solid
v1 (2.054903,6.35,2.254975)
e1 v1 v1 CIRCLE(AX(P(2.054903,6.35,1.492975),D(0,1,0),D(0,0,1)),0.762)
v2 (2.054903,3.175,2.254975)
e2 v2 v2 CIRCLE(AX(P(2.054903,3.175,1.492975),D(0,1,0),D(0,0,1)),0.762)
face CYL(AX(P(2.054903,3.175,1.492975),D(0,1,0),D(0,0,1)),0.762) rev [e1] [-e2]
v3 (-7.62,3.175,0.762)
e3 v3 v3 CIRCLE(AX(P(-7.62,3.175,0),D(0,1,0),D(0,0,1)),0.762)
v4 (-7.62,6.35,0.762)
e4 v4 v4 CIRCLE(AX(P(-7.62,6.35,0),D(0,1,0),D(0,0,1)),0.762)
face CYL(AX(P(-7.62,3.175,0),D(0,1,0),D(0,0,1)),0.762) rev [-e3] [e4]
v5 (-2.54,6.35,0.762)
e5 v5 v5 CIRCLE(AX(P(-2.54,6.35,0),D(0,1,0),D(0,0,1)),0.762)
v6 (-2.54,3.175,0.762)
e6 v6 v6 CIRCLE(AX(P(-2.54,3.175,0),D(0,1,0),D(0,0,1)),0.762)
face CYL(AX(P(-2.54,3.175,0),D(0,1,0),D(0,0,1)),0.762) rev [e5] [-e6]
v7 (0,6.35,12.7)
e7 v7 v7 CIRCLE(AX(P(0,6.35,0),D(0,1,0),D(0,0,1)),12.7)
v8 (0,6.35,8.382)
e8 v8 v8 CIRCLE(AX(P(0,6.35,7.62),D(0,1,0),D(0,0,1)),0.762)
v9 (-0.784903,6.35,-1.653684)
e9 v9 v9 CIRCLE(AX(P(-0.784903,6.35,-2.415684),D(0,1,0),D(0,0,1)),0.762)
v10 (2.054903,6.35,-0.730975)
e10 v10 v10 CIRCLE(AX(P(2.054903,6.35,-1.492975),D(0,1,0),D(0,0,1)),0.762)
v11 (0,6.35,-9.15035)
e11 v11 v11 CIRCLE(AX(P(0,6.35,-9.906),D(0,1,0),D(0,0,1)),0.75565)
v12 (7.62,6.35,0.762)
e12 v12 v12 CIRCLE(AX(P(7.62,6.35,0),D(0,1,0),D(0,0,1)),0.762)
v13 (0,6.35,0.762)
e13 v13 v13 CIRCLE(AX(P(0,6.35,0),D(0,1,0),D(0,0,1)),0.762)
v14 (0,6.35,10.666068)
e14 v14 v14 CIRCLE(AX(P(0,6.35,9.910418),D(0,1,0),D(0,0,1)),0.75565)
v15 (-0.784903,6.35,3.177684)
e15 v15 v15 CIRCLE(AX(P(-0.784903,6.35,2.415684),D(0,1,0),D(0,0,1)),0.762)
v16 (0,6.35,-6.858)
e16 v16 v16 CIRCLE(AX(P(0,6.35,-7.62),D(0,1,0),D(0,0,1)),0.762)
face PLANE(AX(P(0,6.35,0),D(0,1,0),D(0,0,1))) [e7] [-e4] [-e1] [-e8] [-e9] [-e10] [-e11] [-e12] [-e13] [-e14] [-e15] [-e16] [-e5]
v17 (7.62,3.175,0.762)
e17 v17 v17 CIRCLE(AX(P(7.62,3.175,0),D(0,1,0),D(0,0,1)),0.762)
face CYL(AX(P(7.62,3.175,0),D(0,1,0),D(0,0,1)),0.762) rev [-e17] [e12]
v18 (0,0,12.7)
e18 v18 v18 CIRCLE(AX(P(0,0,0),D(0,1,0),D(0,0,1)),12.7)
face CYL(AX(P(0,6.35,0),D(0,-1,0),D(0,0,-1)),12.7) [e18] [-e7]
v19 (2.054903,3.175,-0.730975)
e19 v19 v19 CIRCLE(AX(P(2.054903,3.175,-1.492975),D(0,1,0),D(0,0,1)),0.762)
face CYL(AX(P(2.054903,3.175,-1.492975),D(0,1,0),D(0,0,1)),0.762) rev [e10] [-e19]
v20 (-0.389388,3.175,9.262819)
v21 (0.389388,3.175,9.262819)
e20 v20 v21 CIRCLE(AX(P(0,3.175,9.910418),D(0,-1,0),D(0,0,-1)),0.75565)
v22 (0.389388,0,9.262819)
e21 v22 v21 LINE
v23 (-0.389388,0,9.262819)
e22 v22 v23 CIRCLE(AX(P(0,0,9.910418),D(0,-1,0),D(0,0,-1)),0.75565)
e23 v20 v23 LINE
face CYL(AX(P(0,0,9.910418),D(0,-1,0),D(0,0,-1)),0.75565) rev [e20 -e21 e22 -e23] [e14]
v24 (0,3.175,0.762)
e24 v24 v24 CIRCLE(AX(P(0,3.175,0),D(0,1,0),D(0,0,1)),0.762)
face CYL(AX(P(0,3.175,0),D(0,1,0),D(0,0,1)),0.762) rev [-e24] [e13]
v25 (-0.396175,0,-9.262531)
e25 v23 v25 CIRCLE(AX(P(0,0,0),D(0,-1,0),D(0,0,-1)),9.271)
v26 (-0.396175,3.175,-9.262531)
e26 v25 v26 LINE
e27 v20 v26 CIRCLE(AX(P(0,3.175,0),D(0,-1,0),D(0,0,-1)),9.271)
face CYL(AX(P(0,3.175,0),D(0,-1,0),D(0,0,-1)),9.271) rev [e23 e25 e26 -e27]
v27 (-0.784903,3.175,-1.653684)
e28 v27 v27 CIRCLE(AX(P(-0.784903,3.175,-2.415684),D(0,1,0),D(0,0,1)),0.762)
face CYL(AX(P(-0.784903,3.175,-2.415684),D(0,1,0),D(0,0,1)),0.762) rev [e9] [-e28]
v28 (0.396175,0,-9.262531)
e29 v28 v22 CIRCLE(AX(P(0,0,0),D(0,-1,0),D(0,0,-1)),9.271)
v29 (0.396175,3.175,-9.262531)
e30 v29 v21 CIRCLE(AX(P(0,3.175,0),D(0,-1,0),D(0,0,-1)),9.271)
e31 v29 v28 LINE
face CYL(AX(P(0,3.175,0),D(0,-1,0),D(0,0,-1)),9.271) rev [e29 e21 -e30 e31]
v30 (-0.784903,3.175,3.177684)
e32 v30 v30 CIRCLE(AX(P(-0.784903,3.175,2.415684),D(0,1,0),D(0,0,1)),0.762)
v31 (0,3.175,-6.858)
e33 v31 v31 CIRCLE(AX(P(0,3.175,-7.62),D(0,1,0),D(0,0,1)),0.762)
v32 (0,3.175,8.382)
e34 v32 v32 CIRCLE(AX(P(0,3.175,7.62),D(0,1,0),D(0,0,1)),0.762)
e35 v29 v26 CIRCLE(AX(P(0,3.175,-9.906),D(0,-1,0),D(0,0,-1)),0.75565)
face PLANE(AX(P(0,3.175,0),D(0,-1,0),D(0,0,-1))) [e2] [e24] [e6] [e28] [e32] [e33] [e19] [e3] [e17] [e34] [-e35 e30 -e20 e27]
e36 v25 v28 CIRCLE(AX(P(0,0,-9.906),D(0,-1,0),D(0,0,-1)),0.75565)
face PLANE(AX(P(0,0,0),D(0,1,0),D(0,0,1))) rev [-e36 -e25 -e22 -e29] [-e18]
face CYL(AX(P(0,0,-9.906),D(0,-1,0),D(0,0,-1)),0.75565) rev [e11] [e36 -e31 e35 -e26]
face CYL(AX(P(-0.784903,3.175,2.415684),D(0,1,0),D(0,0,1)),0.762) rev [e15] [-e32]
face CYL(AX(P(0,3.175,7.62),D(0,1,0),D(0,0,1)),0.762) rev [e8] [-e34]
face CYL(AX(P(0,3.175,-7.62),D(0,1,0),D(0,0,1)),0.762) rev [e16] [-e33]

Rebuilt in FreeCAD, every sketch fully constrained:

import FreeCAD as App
import Part
import Sketcher

V = App.Vector
Q = App.Units.Quantity

doc = App.newDocument("Part")
body = doc.addObject("PartDesign::Body", "Body")

# Sketch on XZ plane
sketch1 = body.newObject("Sketcher::SketchObject", "Sketch")
sketch1.AttachmentSupport = (doc.getObject("XZ_Plane"), [""])
sketch1.MapMode = "FlatFace"
sketch1.addGeometry(Part.Circle(V(0, 0, 0), V(0, 0, 1), 12.7), False)
sketch1.addConstraint(Sketcher.Constraint("Coincident", 0, 3, -1, 1))
sketch1.addConstraint(Sketcher.Constraint("Diameter", 0, Q("1 in")))
pad1 = body.newObject("PartDesign::Pad", "Pad")
pad1.Profile = sketch1
pad1.Length = Q("0.25 in")
pad1.Reversed = True

# Sketch on XZ plane
sketch2 = body.newObject("Sketcher::SketchObject", "Sketch001")
sketch2.AttachmentSupport = (doc.getObject("XZ_Plane"), [""])
sketch2.MapMode = "FlatFace"
sketch2.addGeometry(Part.Circle(V(0, 0, 0), V(0, 0, 1), 9.271), False)
sketch2.addConstraint(Sketcher.Constraint("Coincident", 0, 3, -1, 1))
sketch2.addConstraint(Sketcher.Constraint("Diameter", 0, Q("0.73 in")))
pocket1 = body.newObject("PartDesign::Pocket", "Pocket")
pocket1.Profile = sketch2
pocket1.Length = Q("0.125 in")

# Sketch on YZ plane
sketch3 = body.newObject("Sketcher::SketchObject", "Sketch002")
sketch3.AttachmentSupport = (doc.getObject("YZ_Plane"), [""])
sketch3.MapMode = "FlatFace"
sketch3.addGeometry(Part.LineSegment(V(11.63004, -9.906, 0), V(0, -9.906, 0)), False)
sketch3.addGeometry(Part.LineSegment(V(0, -9.906, 0), V(0, -10.66165, 0)), False)
sketch3.addGeometry(Part.LineSegment(V(0, -10.66165, 0), V(11.176, -10.66165, 0)), False)
sketch3.addGeometry(Part.LineSegment(V(11.176, -10.66165, 0), V(11.63004, -9.906, 0)), False)
sketch3.addGeometry(Part.LineSegment(V(0, -9.906, 0), V(11.63004, -9.906, 0)), True)  # axis
sketch3.addConstraint(Sketcher.Constraint("Coincident", 0, 2, 1, 1))
sketch3.addConstraint(Sketcher.Constraint("Coincident", 1, 2, 2, 1))
sketch3.addConstraint(Sketcher.Constraint("Coincident", 2, 2, 3, 1))
sketch3.addConstraint(Sketcher.Constraint("Coincident", 3, 2, 0, 1))
sketch3.addConstraint(Sketcher.Constraint("Horizontal", 0))
sketch3.addConstraint(Sketcher.Constraint("Vertical", 1))
sketch3.addConstraint(Sketcher.Constraint("Horizontal", 2))
sketch3.addConstraint(Sketcher.Constraint("Horizontal", 4))
sketch3.addConstraint(Sketcher.Constraint("Coincident", 4, 1, 0, 2))
sketch3.addConstraint(Sketcher.Constraint("PointOnObject", 0, 2, -2))
sketch3.addConstraint(Sketcher.Constraint("Equal", 0, 4))
sketch3.addConstraint(Sketcher.Constraint("Angle", 3, Q("59 deg")))
sketch3.addConstraint(Sketcher.Constraint("DistanceX", 2, 1, 2, 2, Q("0.44 in")))
sketch3.addConstraint(Sketcher.Constraint("DistanceY", 0, 2, -1, 1, Q("0.39 in")))
sketch3.addConstraint(Sketcher.Constraint("DistanceX", 0, 2, 0, 1, 11.63004))
groove = body.newObject("PartDesign::Groove", "Groove")
groove.Profile = sketch3
groove.ReferenceAxis = (sketch3, ["Axis0"])
groove.Angle = 360
doc.recompute()

datumline = body.newObject("PartDesign::Line", "DatumLine")
datumline.Placement = App.Placement(V(0, 0, 0.002209), App.Rotation(V(0, 0, 1), V(0, 1, 0)))
polarpattern = body.newObject("PartDesign::PolarPattern", "PolarPattern")
polarpattern.Originals = [groove]
polarpattern.Axis = (datumline, [""])
polarpattern.Angle = 360
polarpattern.Occurrences = 2
body.Tip = polarpattern

# Sketch on XZ plane
sketch4 = body.newObject("Sketcher::SketchObject", "Sketch003")
sketch4.AttachmentSupport = (doc.getObject("XZ_Plane"), [""])
sketch4.MapMode = "FlatFace"
sketch4.AttachmentOffset = App.Placement(V(0, 0, -0.25 * 25.4), App.Rotation())
sketch4.addGeometry(Part.Circle(V(0, 0, 0), V(0, 0, 1), 0.762), False)
sketch4.addGeometry(Part.Circle(V(-2.54, 0, 0), V(0, 0, 1), 0.762), False)
sketch4.addGeometry(Part.Circle(V(-0.784903, -2.415684, 0), V(0, 0, 1), 0.762), False)
sketch4.addGeometry(Part.Circle(V(2.054903, -1.492975, 0), V(0, 0, 1), 0.762), False)
sketch4.addGeometry(Part.Circle(V(2.054903, 1.492975, 0), V(0, 0, 1), 0.762), False)
sketch4.addGeometry(Part.Circle(V(-0.784903, 2.415684, 0), V(0, 0, 1), 0.762), False)
sketch4.addGeometry(Part.Circle(V(0, -7.62, 0), V(0, 0, 1), 0.762), False)
sketch4.addGeometry(Part.Circle(V(7.62, 0, 0), V(0, 0, 1), 0.762), False)
sketch4.addGeometry(Part.Circle(V(0, 7.62, 0), V(0, 0, 1), 0.762), False)
sketch4.addGeometry(Part.Circle(V(-7.62, 0, 0), V(0, 0, 1), 0.762), False)
sketch4.addConstraint(Sketcher.Constraint("Coincident", 0, 3, -1, 1))
sketch4.addConstraint(Sketcher.Constraint("Equal", 0, 1))
sketch4.addConstraint(Sketcher.Constraint("Equal", 1, 2))
sketch4.addConstraint(Sketcher.Constraint("Equal", 2, 3))
sketch4.addConstraint(Sketcher.Constraint("Equal", 3, 4))
sketch4.addConstraint(Sketcher.Constraint("Equal", 4, 5))
sketch4.addConstraint(Sketcher.Constraint("Equal", 5, 6))
sketch4.addConstraint(Sketcher.Constraint("Equal", 6, 7))
sketch4.addConstraint(Sketcher.Constraint("Equal", 7, 8))
sketch4.addConstraint(Sketcher.Constraint("Equal", 8, 9))
sketch4.addConstraint(Sketcher.Constraint("Symmetric", 6, 3, 8, 3, -1, 1))
sketch4.addConstraint(Sketcher.Constraint("Symmetric", 7, 3, 9, 3, -1, 1))
sketch4.addConstraint(Sketcher.Constraint("Symmetric", 3, 3, 4, 3, -1))
sketch4.addConstraint(Sketcher.Constraint("Symmetric", 2, 3, 5, 3, -1))
sketch4.addConstraint(Sketcher.Constraint("PointOnObject", 1, 3, -1))
sketch4.addConstraint(Sketcher.Constraint("PointOnObject", 6, 3, -2))
sketch4.addConstraint(Sketcher.Constraint("PointOnObject", 7, 3, -1))
sketch4.addConstraint(Sketcher.Constraint("Diameter", 0, Q("0.06 in")))
sketch4.addConstraint(Sketcher.Constraint("DistanceX", 1, 3, -1, 1, Q("0.1 in")))
sketch4.addConstraint(Sketcher.Constraint("DistanceY", 6, 3, -1, 1, Q("0.3 in")))
sketch4.addConstraint(Sketcher.Constraint("DistanceX", -1, 1, 7, 3, Q("0.3 in")))
sketch4.addConstraint(Sketcher.Constraint("DistanceY", 2, 3, 3, 3, 0.922709))
sketch4.addConstraint(Sketcher.Constraint("DistanceY", 3, 3, 4, 3, 2.985949))
sketch4.addConstraint(Sketcher.Constraint("DistanceX", 2, 3, -1, 1, 0.784903))
sketch4.addConstraint(Sketcher.Constraint("DistanceX", -1, 1, 3, 3, 2.054903))
pocket2 = body.newObject("PartDesign::Pocket", "Pocket001")
pocket2.Profile = sketch4
pocket2.Length = Q("0.125 in")
pocket2.Reversed = True

doc.recompute()
